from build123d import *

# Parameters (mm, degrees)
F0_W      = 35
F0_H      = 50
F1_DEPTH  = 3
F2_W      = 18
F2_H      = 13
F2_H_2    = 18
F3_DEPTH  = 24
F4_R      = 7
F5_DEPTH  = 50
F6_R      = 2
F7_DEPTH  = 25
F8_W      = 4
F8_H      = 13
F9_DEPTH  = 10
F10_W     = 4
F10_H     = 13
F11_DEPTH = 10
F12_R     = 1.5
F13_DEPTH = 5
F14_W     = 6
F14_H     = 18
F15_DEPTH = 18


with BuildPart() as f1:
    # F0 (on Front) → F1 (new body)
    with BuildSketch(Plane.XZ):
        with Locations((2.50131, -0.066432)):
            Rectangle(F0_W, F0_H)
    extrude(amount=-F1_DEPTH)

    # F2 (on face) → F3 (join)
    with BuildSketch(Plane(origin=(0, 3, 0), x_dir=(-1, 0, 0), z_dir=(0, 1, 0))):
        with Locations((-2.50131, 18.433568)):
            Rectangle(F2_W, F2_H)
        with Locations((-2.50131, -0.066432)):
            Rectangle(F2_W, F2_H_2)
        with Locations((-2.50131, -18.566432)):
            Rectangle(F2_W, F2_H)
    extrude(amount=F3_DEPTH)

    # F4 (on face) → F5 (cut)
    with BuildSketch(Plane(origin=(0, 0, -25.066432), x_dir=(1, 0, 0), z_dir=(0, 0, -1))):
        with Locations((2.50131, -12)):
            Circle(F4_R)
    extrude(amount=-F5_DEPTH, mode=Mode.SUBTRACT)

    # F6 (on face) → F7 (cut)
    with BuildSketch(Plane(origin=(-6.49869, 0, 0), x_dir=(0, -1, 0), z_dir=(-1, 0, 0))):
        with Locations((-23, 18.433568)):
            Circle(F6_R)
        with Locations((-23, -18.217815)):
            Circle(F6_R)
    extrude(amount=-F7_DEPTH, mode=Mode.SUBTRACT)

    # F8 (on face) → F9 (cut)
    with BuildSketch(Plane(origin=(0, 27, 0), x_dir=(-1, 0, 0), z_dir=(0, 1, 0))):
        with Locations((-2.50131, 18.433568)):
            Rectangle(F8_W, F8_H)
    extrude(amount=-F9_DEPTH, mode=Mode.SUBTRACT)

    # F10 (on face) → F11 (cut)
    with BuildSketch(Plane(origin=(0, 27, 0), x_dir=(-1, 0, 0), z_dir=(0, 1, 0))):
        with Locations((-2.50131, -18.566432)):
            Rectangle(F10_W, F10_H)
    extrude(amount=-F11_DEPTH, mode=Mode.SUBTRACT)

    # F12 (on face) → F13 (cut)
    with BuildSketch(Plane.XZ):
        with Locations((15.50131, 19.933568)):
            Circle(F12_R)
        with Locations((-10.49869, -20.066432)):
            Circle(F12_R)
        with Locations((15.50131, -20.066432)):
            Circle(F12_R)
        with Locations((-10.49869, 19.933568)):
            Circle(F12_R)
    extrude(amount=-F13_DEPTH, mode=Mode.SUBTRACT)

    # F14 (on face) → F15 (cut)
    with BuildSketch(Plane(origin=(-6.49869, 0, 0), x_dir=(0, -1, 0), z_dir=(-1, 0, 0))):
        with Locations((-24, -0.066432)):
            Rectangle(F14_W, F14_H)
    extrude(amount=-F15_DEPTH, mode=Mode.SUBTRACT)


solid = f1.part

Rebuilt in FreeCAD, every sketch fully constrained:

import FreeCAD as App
import Part
import Sketcher

doc = App.newDocument("Part")
body = doc.addObject("PartDesign::Body", "Body")

sketch1 = doc.addObject("Sketcher::SketchObject", "Sketch")
body.addObject(sketch1)
sketch1.AttachmentSupport = (doc.XZ_Plane, [""])
sketch1.MapMode = "FlatFace"
sketch1.addGeometry(Part.LineSegment(App.Vector(-15, 25, 0), App.Vector(-15, -25, 0)), False)
sketch1.addGeometry(Part.LineSegment(App.Vector(-15, -25, 0), App.Vector(20, -25, 0)), False)
sketch1.addGeometry(Part.LineSegment(App.Vector(20, -25, 0), App.Vector(20, 25, 0)), False)
sketch1.addGeometry(Part.LineSegment(App.Vector(20, 25, 0), App.Vector(-15, 25, 0)), False)
sketch1.addConstraint(Sketcher.Constraint("Coincident", 0, 2, 1, 1))
sketch1.addConstraint(Sketcher.Constraint("Coincident", 1, 2, 2, 1))
sketch1.addConstraint(Sketcher.Constraint("Coincident", 2, 2, 3, 1))
sketch1.addConstraint(Sketcher.Constraint("Coincident", 3, 2, 0, 1))
sketch1.addConstraint(Sketcher.Constraint("Vertical", 0))
sketch1.addConstraint(Sketcher.Constraint("Horizontal", 1))
sketch1.addConstraint(Sketcher.Constraint("Vertical", 2))
sketch1.addConstraint(Sketcher.Constraint("Horizontal", 3))
sketch1.addConstraint(Sketcher.Constraint("DistanceX", 1, 1, 1, 2, 35.0))
sketch1.addConstraint(Sketcher.Constraint("DistanceY", 0, 2, 0, 1, 50.0))
sketch1.addConstraint(Sketcher.Constraint("DistanceX", 0, 2, -1, 1, 14.99869))
sketch1.addConstraint(Sketcher.Constraint("DistanceY", 0, 2, -1, 1, 25.066432))
pad1 = doc.addObject("PartDesign::Pad", "Pad")
body.addObject(pad1)
pad1.Profile = sketch1
pad1.Length = 3
pad1.Reversed = True

sketch2 = doc.addObject("Sketcher::SketchObject", "Sketch001")
body.addObject(sketch2)
sketch2.AttachmentSupport = (doc.XZ_Plane, [""])
sketch2.MapMode = "FlatFace"
sketch2.AttachmentOffset = App.Placement(App.Vector(0, 0, -3), App.Rotation())
sketch2.addGeometry(Part.LineSegment(App.Vector(12, 25, 0), App.Vector(12, 12, 0)), False)
sketch2.addGeometry(Part.LineSegment(App.Vector(12, 12, 0), App.Vector(-6, 12, 0)), False)
sketch2.addGeometry(Part.LineSegment(App.Vector(-6, 12, 0), App.Vector(-6, 25, 0)), False)
sketch2.addGeometry(Part.LineSegment(App.Vector(-6, 25, 0), App.Vector(12, 25, 0)), False)
sketch2.addGeometry(Part.LineSegment(App.Vector(12, 9, 0), App.Vector(12, -9, 0)), False)
sketch2.addGeometry(Part.LineSegment(App.Vector(12, -9, 0), App.Vector(-6, -9, 0)), False)
sketch2.addGeometry(Part.LineSegment(App.Vector(-6, -9, 0), App.Vector(-6, 9, 0)), False)
sketch2.addGeometry(Part.LineSegment(App.Vector(-6, 9, 0), App.Vector(12, 9, 0)), False)
sketch2.addGeometry(Part.LineSegment(App.Vector(12, -12, 0), App.Vector(12, -25, 0)), False)
sketch2.addGeometry(Part.LineSegment(App.Vector(12, -25, 0), App.Vector(-6, -25, 0)), False)
sketch2.addGeometry(Part.LineSegment(App.Vector(-6, -25, 0), App.Vector(-6, -12, 0)), False)
sketch2.addGeometry(Part.LineSegment(App.Vector(-6, -12, 0), App.Vector(12, -12, 0)), False)
sketch2.addConstraint(Sketcher.Constraint("Coincident", 0, 2, 1, 1))
sketch2.addConstraint(Sketcher.Constraint("Coincident", 1, 2, 2, 1))
sketch2.addConstraint(Sketcher.Constraint("Coincident", 2, 2, 3, 1))
sketch2.addConstraint(Sketcher.Constraint("Coincident", 3, 2, 0, 1))
sketch2.addConstraint(Sketcher.Constraint("Coincident", 4, 2, 5, 1))
sketch2.addConstraint(Sketcher.Constraint("Coincident", 5, 2, 6, 1))
sketch2.addConstraint(Sketcher.Constraint("Coincident", 6, 2, 7, 1))
sketch2.addConstraint(Sketcher.Constraint("Coincident", 7, 2, 4, 1))
sketch2.addConstraint(Sketcher.Constraint("Coincident", 8, 2, 9, 1))
sketch2.addConstraint(Sketcher.Constraint("Coincident", 9, 2, 10, 1))
sketch2.addConstraint(Sketcher.Constraint("Coincident", 10, 2, 11, 1))
sketch2.addConstraint(Sketcher.Constraint("Coincident", 11, 2, 8, 1))
sketch2.addConstraint(Sketcher.Constraint("Vertical", 0))
sketch2.addConstraint(Sketcher.Constraint("Horizontal", 1))
sketch2.addConstraint(Sketcher.Constraint("Vertical", 2))
sketch2.addConstraint(Sketcher.Constraint("Horizontal", 3))
sketch2.addConstraint(Sketcher.Constraint("Vertical", 4))
sketch2.addConstraint(Sketcher.Constraint("Horizontal", 5))
sketch2.addConstraint(Sketcher.Constraint("Vertical", 6))
sketch2.addConstraint(Sketcher.Constraint("Horizontal", 7))
sketch2.addConstraint(Sketcher.Constraint("Vertical", 8))
sketch2.addConstraint(Sketcher.Constraint("Horizontal", 9))
sketch2.addConstraint(Sketcher.Constraint("Vertical", 10))
sketch2.addConstraint(Sketcher.Constraint("Horizontal", 11))
sketch2.addConstraint(Sketcher.Constraint("Vertical", 3, 2, 4, 2))
sketch2.addConstraint(Sketcher.Constraint("Vertical", 2, 2, 5, 2))
sketch2.addConstraint(Sketcher.Constraint("Vertical", 7, 2, 8, 2))
sketch2.addConstraint(Sketcher.Constraint("Vertical", 6, 2, 9, 2))
sketch2.addConstraint(Sketcher.Constraint("Equal", 11, 4))
sketch2.addConstraint(Sketcher.Constraint("Equal", 2, 8))
sketch2.addConstraint(Sketcher.Constraint("DistanceX", 1, 2, 1, 1, 18.0))
sketch2.addConstraint(Sketcher.Constraint("DistanceY", 0, 2, 0, 1, 13.0))
sketch2.addConstraint(Sketcher.Constraint("DistanceY", 4, 2, 0, 2, 21.0))
sketch2.addConstraint(Sketcher.Constraint("DistanceY", 8, 2, 4, 2, 16.0))
sketch2.addConstraint(Sketcher.Constraint("DistanceX", -1, 1, 0, 2, 11.50131))
sketch2.addConstraint(Sketcher.Constraint("DistanceY", -1, 1, 2, 2, 24.933568))
pad2 = doc.addObject("PartDesign::Pad", "Pad001")
body.addObject(pad2)
pad2.Profile = sketch2
pad2.Length = 24
pad2.Reversed = True

sketch3 = doc.addObject("Sketcher::SketchObject", "Sketch002")
body.addObject(sketch3)
sketch3.AttachmentSupport = (doc.XY_Plane, [""])
sketch3.MapMode = "FlatFace"
sketch3.AttachmentOffset = App.Placement(App.Vector(0, 0, -25.066432), App.Rotation())
sketch3.addGeometry(Part.Circle(App.Vector(3, 12, 0), App.Vector(0, 0, 1), 7), False)
sketch3.addConstraint(Sketcher.Constraint("Diameter", 0, 14.0))
sketch3.addConstraint(Sketcher.Constraint("DistanceY", -1, 1, 0, 3, 12.0))
sketch3.addConstraint(Sketcher.Constraint("DistanceX", -1, 1, 0, 3, 2.50131))
pocket1 = doc.addObject("PartDesign::Pocket", "Pocket")
body.addObject(pocket1)
pocket1.Profile = sketch3
pocket1.Length = 50
pocket1.Reversed = True

sketch4 = doc.addObject("Sketcher::SketchObject", "Sketch003")
body.addObject(sketch4)
sketch4.AttachmentSupport = (doc.YZ_Plane, [""])
sketch4.MapMode = "FlatFace"
sketch4.AttachmentOffset = App.Placement(App.Vector(0, 0, -6.49869), App.Rotation())
sketch4.addGeometry(Part.Circle(App.Vector(23, 18.4, 0), App.Vector(0, 0, 1), 2), False)
sketch4.addGeometry(Part.Circle(App.Vector(23, -18.2, 0), App.Vector(0, 0, 1), 2), False)
sketch4.addConstraint(Sketcher.Constraint("Equal", 0, 1))
sketch4.addConstraint(Sketcher.Constraint("Vertical", 0, 3, 1, 3))
sketch4.addConstraint(Sketcher.Constraint("Diameter", 0, 4.0))
sketch4.addConstraint(Sketcher.Constraint("DistanceX", -1, 1, 0, 3, 23.0))
sketch4.addConstraint(Sketcher.Constraint("DistanceY", -1, 1, 0, 3, 18.433568))
sketch4.addConstraint(Sketcher.Constraint("DistanceY", 1, 3, -1, 1, 18.217815))
pocket2 = doc.addObject("PartDesign::Pocket", "Pocket001")
body.addObject(pocket2)
pocket2.Profile = sketch4
pocket2.Length = 25
pocket2.Reversed = True

sketch5 = doc.addObject("Sketcher::SketchObject", "Sketch004")
body.addObject(sketch5)
sketch5.AttachmentSupport = (doc.XZ_Plane, [""])
sketch5.MapMode = "FlatFace"
sketch5.AttachmentOffset = App.Placement(App.Vector(0, 0, -27), App.Rotation())
sketch5.addGeometry(Part.LineSegment(App.Vector(4.5, 24.9, 0), App.Vector(4.5, 11.9, 0)), False)
sketch5.addGeometry(Part.LineSegment(App.Vector(4.5, 11.9, 0), App.Vector(0.5, 11.9, 0)), False)
sketch5.addGeometry(Part.LineSegment(App.Vector(0.5, 11.9, 0), App.Vector(0.5, 24.9, 0)), False)
sketch5.addGeometry(Part.LineSegment(App.Vector(0.5, 24.9, 0), App.Vector(4.5, 24.9, 0)), False)
sketch5.addConstraint(Sketcher.Constraint("Coincident", 0, 2, 1, 1))
sketch5.addConstraint(Sketcher.Constraint("Coincident", 1, 2, 2, 1))
sketch5.addConstraint(Sketcher.Constraint("Coincident", 2, 2, 3, 1))
sketch5.addConstraint(Sketcher.Constraint("Coincident", 3, 2, 0, 1))
sketch5.addConstraint(Sketcher.Constraint("Vertical", 0))
sketch5.addConstraint(Sketcher.Constraint("Horizontal", 1))
sketch5.addConstraint(Sketcher.Constraint("Vertical", 2))
sketch5.addConstraint(Sketcher.Constraint("Horizontal", 3))
sketch5.addConstraint(Sketcher.Constraint("DistanceX", 1, 2, 1, 1, 4.0))
sketch5.addConstraint(Sketcher.Constraint("DistanceY", 0, 2, 0, 1, 13.0))
sketch5.addConstraint(Sketcher.Constraint("DistanceX", -1, 1, 0, 2, 4.50131))
sketch5.addConstraint(Sketcher.Constraint("DistanceY", -1, 1, 2, 2, 24.933568))
pocket3 = doc.addObject("PartDesign::Pocket", "Pocket002")
body.addObject(pocket3)
pocket3.Profile = sketch5
pocket3.Length = 10
pocket3.Reversed = True

sketch6 = doc.addObject("Sketcher::SketchObject", "Sketch005")
body.addObject(sketch6)
sketch6.AttachmentSupport = (doc.XZ_Plane, [""])
sketch6.MapMode = "FlatFace"
sketch6.AttachmentOffset = App.Placement(App.Vector(0, 0, -27), App.Rotation())
sketch6.addGeometry(Part.LineSegment(App.Vector(4.5, -12.1, 0), App.Vector(4.5, -25.1, 0)), False)
sketch6.addGeometry(Part.LineSegment(App.Vector(4.5, -25.1, 0), App.Vector(0.5, -25.1, 0)), False)
sketch6.addGeometry(Part.LineSegment(App.Vector(0.5, -25.1, 0), App.Vector(0.5, -12.1, 0)), False)
sketch6.addGeometry(Part.LineSegment(App.Vector(0.5, -12.1, 0), App.Vector(4.5, -12.1, 0)), False)
sketch6.addConstraint(Sketcher.Constraint("Coincident", 0, 2, 1, 1))
sketch6.addConstraint(Sketcher.Constraint("Coincident", 1, 2, 2, 1))
sketch6.addConstraint(Sketcher.Constraint("Coincident", 2, 2, 3, 1))
sketch6.addConstraint(Sketcher.Constraint("Coincident", 3, 2, 0, 1))
sketch6.addConstraint(Sketcher.Constraint("Vertical", 0))
sketch6.addConstraint(Sketcher.Constraint("Horizontal", 1))
sketch6.addConstraint(Sketcher.Constraint("Vertical", 2))
sketch6.addConstraint(Sketcher.Constraint("Horizontal", 3))
sketch6.addConstraint(Sketcher.Constraint("DistanceX", 1, 2, 1, 1, 4.0))
sketch6.addConstraint(Sketcher.Constraint("DistanceY", 0, 2, 0, 1, 13.0))
sketch6.addConstraint(Sketcher.Constraint("DistanceX", -1, 1, 0, 2, 4.50131))
sketch6.addConstraint(Sketcher.Constraint("DistanceY", 0, 2, -1, 1, 25.066432))
pocket4 = doc.addObject("PartDesign::Pocket", "Pocket003")
body.addObject(pocket4)
pocket4.Profile = sketch6
pocket4.Length = 10
pocket4.Reversed = True

sketch7 = doc.addObject("Sketcher::SketchObject", "Sketch006")
body.addObject(sketch7)
sketch7.AttachmentSupport = (doc.XZ_Plane, [""])
sketch7.MapMode = "FlatFace"
sketch7.addGeometry(Part.Circle(App.Vector(15.5, 19.9, 0), App.Vector(0, 0, 1), 1.5), False)
sketch7.addGeometry(Part.Circle(App.Vector(-10.5, -20.1, 0), App.Vector(0, 0, 1), 1.5), False)
sketch7.addGeometry(Part.Circle(App.Vector(15.5, -20.1, 0), App.Vector(0, 0, 1), 1.5), False)
sketch7.addGeometry(Part.Circle(App.Vector(-10.5, 19.9, 0), App.Vector(0, 0, 1), 1.5), False)
sketch7.addConstraint(Sketcher.Constraint("Equal", 0, 1))
sketch7.addConstraint(Sketcher.Constraint("Equal", 1, 2))
sketch7.addConstraint(Sketcher.Constraint("Equal", 2, 3))
sketch7.addConstraint(Sketcher.Constraint("Horizontal", 1, 3, 2, 3))
sketch7.addConstraint(Sketcher.Constraint("Horizontal", 0, 3, 3, 3))
sketch7.addConstraint(Sketcher.Constraint("Vertical", 0, 3, 2, 3))
sketch7.addConstraint(Sketcher.Constraint("Vertical", 1, 3, 3, 3))
sketch7.addConstraint(Sketcher.Constraint("Diameter", 0, 3.0))
sketch7.addConstraint(Sketcher.Constraint("DistanceX", 1, 3, 0, 3, 26.0))
sketch7.addConstraint(Sketcher.Constraint("DistanceY", 1, 3, 0, 3, 40.0))
sketch7.addConstraint(Sketcher.Constraint("DistanceX", -1, 1, 0, 3, 15.50131))
sketch7.addConstraint(Sketcher.Constraint("DistanceY", -1, 1, 0, 3, 19.933568))
pocket5 = doc.addObject("PartDesign::Pocket", "Pocket004")
body.addObject(pocket5)
pocket5.Profile = sketch7
pocket5.Length = 5

sketch8 = doc.addObject("Sketcher::SketchObject", "Sketch007")
body.addObject(sketch8)
sketch8.AttachmentSupport = (doc.YZ_Plane, [""])
sketch8.MapMode = "FlatFace"
sketch8.AttachmentOffset = App.Placement(App.Vector(0, 0, -6.49869), App.Rotation())
sketch8.addGeometry(Part.LineSegment(App.Vector(27, 9, 0), App.Vector(27, -9, 0)), False)
sketch8.addGeometry(Part.LineSegment(App.Vector(27, -9, 0), App.Vector(21, -9, 0)), False)
sketch8.addGeometry(Part.LineSegment(App.Vector(21, -9, 0), App.Vector(21, 9, 0)), False)
sketch8.addGeometry(Part.LineSegment(App.Vector(21, 9, 0), App.Vector(27, 9, 0)), False)
sketch8.addConstraint(Sketcher.Constraint("Coincident", 0, 2, 1, 1))
sketch8.addConstraint(Sketcher.Constraint("Coincident", 1, 2, 2, 1))
sketch8.addConstraint(Sketcher.Constraint("Coincident", 2, 2, 3, 1))
sketch8.addConstraint(Sketcher.Constraint("Coincident", 3, 2, 0, 1))
sketch8.addConstraint(Sketcher.Constraint("Vertical", 0))
sketch8.addConstraint(Sketcher.Constraint("Horizontal", 1))
sketch8.addConstraint(Sketcher.Constraint("Vertical", 2))
sketch8.addConstraint(Sketcher.Constraint("Horizontal", 3))
sketch8.addConstraint(Sketcher.Constraint("DistanceX", 1, 2, 1, 1, 6.0))
sketch8.addConstraint(Sketcher.Constraint("DistanceY", 0, 2, 0, 1, 18.0))
sketch8.addConstraint(Sketcher.Constraint("DistanceX", -1, 1, 0, 2, 27.0))
sketch8.addConstraint(Sketcher.Constraint("DistanceY", 0, 2, -1, 1, 9.066432))
pocket6 = doc.addObject("PartDesign::Pocket", "Pocket005")
body.addObject(pocket6)
pocket6.Profile = sketch8
pocket6.Length = 18
pocket6.Reversed = True

doc.recompute()
